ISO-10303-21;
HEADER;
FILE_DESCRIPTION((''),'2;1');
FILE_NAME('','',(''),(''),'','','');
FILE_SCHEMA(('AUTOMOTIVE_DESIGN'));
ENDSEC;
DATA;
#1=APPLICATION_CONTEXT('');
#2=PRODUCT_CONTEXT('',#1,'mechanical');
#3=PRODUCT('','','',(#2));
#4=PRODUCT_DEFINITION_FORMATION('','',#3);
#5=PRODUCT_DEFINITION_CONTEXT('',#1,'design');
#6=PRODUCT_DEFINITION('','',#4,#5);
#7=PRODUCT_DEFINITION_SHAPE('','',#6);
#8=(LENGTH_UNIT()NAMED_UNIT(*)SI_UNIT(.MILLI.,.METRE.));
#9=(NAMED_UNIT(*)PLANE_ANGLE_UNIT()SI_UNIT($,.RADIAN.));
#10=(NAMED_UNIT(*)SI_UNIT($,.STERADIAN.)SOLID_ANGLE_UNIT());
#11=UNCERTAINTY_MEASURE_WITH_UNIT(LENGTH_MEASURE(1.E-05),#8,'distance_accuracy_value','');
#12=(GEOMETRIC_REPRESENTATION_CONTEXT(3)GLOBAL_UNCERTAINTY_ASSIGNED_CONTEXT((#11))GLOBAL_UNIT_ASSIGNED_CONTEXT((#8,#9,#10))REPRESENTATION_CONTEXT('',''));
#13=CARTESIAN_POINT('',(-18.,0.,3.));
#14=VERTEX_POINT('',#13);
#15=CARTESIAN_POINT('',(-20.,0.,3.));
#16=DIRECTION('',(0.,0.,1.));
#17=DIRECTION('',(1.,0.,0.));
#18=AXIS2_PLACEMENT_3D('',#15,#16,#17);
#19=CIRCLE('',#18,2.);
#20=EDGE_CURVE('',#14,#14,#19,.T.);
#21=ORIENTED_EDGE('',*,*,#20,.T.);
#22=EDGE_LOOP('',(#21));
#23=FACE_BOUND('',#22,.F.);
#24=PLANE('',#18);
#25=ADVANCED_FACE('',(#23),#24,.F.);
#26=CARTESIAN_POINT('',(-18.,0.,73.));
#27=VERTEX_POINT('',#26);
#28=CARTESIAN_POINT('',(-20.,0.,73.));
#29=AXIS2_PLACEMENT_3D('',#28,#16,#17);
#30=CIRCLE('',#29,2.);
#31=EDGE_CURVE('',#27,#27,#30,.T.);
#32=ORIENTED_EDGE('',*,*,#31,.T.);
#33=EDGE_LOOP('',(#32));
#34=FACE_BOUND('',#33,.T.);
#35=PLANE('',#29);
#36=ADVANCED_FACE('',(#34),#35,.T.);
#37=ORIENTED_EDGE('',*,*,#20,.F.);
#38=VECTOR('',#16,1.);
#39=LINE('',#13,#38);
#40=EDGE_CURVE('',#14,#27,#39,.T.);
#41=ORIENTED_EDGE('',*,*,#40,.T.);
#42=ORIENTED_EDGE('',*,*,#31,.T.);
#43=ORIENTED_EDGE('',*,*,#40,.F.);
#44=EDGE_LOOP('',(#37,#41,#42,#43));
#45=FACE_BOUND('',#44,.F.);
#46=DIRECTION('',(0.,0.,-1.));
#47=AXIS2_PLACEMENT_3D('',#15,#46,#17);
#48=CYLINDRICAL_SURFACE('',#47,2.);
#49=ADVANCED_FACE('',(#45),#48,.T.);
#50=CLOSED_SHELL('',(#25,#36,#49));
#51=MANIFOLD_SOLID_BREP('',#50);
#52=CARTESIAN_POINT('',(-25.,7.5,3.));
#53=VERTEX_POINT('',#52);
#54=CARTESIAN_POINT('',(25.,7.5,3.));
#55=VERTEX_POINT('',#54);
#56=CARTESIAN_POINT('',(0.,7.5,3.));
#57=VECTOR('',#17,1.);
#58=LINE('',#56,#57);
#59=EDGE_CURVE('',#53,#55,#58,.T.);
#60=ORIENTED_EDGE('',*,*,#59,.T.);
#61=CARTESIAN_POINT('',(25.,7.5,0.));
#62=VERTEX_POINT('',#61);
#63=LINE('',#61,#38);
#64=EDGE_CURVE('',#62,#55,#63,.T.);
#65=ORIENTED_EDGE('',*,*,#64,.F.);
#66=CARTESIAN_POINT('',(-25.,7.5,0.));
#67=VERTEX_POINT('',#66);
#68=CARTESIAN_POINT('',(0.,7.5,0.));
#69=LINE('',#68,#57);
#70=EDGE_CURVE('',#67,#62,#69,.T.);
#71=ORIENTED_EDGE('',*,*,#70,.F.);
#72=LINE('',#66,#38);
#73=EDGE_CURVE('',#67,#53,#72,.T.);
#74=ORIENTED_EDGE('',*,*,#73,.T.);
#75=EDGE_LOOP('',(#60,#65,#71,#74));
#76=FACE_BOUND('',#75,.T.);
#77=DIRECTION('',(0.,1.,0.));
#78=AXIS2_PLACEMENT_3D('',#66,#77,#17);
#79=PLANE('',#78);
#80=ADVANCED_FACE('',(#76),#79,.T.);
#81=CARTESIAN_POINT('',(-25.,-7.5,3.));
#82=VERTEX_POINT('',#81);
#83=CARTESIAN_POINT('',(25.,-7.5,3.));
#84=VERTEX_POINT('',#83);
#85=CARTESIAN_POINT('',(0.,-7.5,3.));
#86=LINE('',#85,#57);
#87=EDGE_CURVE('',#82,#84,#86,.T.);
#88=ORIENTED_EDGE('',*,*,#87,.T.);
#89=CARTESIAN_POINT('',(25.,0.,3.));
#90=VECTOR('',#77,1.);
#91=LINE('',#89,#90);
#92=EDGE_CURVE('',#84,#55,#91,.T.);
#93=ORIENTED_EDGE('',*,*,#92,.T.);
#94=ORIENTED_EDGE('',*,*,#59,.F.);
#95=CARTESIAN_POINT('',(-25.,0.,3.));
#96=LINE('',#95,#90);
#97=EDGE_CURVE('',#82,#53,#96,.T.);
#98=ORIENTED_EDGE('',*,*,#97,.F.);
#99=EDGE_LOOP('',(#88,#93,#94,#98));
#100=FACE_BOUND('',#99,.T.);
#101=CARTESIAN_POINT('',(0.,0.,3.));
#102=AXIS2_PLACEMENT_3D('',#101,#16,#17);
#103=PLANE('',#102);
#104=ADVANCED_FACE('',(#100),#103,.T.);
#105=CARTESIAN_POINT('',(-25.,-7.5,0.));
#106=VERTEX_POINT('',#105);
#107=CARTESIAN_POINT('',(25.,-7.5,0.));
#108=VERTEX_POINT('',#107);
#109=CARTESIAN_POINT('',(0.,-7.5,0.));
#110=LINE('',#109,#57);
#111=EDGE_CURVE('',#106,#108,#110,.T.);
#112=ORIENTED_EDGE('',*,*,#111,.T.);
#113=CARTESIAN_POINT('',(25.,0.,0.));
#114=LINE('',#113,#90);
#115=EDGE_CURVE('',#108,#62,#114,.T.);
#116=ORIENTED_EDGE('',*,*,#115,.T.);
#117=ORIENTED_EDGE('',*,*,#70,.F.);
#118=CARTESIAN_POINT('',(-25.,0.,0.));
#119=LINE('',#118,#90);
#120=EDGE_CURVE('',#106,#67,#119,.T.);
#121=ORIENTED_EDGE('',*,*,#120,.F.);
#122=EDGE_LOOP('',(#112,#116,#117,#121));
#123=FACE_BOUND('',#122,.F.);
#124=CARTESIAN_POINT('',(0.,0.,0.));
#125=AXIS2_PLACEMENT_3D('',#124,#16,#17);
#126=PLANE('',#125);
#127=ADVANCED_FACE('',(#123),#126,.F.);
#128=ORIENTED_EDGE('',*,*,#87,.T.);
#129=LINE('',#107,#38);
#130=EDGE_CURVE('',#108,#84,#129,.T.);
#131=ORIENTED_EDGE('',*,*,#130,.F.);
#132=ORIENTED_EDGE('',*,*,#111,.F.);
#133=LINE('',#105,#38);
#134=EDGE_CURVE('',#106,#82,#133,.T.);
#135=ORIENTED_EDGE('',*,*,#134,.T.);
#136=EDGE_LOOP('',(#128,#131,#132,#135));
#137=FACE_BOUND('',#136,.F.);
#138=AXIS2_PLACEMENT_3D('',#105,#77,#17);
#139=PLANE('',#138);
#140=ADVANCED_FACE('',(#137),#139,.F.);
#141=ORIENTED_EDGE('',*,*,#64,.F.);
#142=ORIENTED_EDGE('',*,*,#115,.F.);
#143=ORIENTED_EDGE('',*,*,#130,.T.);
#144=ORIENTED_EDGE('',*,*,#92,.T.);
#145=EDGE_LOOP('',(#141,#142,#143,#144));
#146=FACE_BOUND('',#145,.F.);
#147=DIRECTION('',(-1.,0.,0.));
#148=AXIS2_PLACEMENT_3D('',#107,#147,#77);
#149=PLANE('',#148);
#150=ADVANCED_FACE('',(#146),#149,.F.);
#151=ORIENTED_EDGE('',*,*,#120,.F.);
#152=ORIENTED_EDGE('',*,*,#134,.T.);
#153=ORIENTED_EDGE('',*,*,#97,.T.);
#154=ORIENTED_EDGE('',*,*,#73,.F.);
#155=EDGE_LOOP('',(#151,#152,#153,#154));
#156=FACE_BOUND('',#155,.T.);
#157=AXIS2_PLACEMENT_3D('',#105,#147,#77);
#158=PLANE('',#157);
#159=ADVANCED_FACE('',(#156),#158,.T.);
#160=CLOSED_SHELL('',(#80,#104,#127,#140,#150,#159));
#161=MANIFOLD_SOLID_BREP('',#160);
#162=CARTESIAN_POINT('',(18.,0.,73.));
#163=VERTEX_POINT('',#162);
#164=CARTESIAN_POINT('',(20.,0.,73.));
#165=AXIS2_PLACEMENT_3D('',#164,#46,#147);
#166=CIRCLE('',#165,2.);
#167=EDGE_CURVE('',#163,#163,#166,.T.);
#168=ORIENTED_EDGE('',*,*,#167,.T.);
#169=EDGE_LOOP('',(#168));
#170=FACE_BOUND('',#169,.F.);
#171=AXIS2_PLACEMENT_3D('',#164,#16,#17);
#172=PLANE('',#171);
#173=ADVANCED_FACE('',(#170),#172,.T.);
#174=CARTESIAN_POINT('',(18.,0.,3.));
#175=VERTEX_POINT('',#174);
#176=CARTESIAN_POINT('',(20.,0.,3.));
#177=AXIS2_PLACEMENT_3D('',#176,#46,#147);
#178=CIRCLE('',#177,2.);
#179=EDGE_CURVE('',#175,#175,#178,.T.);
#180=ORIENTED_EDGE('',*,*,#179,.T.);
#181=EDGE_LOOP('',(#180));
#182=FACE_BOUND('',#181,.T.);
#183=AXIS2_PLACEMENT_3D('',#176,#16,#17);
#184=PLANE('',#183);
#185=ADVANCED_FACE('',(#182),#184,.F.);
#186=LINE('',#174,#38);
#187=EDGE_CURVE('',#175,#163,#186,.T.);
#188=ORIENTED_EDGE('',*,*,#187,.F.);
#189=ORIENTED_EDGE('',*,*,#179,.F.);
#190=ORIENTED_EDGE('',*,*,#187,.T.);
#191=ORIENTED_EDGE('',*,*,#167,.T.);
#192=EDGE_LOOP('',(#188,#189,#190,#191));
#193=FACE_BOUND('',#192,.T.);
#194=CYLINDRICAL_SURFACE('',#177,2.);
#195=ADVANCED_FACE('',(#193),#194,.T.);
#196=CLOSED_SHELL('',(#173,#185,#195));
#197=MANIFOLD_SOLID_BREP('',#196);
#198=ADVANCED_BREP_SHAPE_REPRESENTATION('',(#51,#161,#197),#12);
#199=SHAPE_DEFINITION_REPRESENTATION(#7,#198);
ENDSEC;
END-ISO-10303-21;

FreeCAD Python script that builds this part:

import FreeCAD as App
import Part
import Sketcher

V = App.Vector
Q = App.Units.Quantity

doc = App.newDocument("Part")
body = doc.addObject("PartDesign::Body", "Body")

# Sketch on XY plane
sketch1 = body.newObject("Sketcher::SketchObject", "Sketch")
sketch1.AttachmentSupport = (doc.getObject("XY_Plane"), [""])
sketch1.MapMode = "FlatFace"
sketch1.addGeometry(Part.LineSegment(V(-25, 8, 0), V(-25, -8, 0)), False)
sketch1.addGeometry(Part.LineSegment(V(-25, -8, 0), V(25, -8, 0)), False)
sketch1.addGeometry(Part.LineSegment(V(25, -8, 0), V(25, 8, 0)), False)
sketch1.addGeometry(Part.LineSegment(V(25, 8, 0), V(-25, 8, 0)), False)
sketch1.addConstraint(Sketcher.Constraint("Coincident", 0, 2, 1, 1))
sketch1.addConstraint(Sketcher.Constraint("Coincident", 1, 2, 2, 1))
sketch1.addConstraint(Sketcher.Constraint("Coincident", 2, 2, 3, 1))
sketch1.addConstraint(Sketcher.Constraint("Coincident", 3, 2, 0, 1))
sketch1.addConstraint(Sketcher.Constraint("Vertical", 0))
sketch1.addConstraint(Sketcher.Constraint("Horizontal", 1))
sketch1.addConstraint(Sketcher.Constraint("Vertical", 2))
sketch1.addConstraint(Sketcher.Constraint("Horizontal", 3))
sketch1.addConstraint(Sketcher.Constraint("Symmetric", 0, 2, 2, 2, -1, 1))
sketch1.addConstraint(Sketcher.Constraint("DistanceX", 1, 1, 1, 2, Q("50 mm")))
sketch1.addConstraint(Sketcher.Constraint("DistanceY", 0, 2, 0, 1, Q("15 mm")))
pad1 = body.newObject("PartDesign::Pad", "Pad")
pad1.Profile = sketch1
pad1.Length = 3
body2 = doc.addObject("PartDesign::Body", "Body001")

# Sketch on XY plane
sketch2 = body2.newObject("Sketcher::SketchObject", "Sketch001")
sketch2.AttachmentSupport = (doc.getObject("XY_Plane001"), [""])
sketch2.MapMode = "FlatFace"
sketch2.AttachmentOffset = App.Placement(V(0, 0, 3), App.Rotation())
sketch2.addGeometry(Part.Circle(V(-20, 0, 0), V(0, 0, 1), 2), False)
sketch2.addConstraint(Sketcher.Constraint("PointOnObject", 0, 3, -1))
sketch2.addConstraint(Sketcher.Constraint("Diameter", 0, Q("4 mm")))
sketch2.addConstraint(Sketcher.Constraint("DistanceX", 0, 3, -1, 1, Q("20 mm")))
pad2 = body2.newObject("PartDesign::Pad", "Pad001")
pad2.Profile = sketch2
pad2.Length = 70
body3 = doc.addObject("PartDesign::Body", "Body002")
doc.recompute()

mirroring = doc.addObject("Part::Mirroring", "Mirroring")
mirroring.Source = body2
mirroring.Base = V(0, 0, 0)
mirroring.Normal = V(1, 0, 0)
body3.BaseFeature = mirroring
doc.recompute()
mirroring.Visibility = False

doc.recompute()
